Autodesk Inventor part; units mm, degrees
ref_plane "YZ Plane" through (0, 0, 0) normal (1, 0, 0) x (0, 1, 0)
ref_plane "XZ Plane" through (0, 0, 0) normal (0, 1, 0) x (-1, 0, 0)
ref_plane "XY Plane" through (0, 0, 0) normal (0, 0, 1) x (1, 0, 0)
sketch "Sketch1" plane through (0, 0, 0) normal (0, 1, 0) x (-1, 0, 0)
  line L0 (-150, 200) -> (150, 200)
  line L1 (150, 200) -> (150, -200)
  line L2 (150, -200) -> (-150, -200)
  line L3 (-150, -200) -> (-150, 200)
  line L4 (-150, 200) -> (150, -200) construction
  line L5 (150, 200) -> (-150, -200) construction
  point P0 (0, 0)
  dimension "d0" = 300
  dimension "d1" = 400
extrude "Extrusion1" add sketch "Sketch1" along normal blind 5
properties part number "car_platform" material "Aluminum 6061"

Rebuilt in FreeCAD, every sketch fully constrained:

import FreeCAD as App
import Part
import Sketcher
from FreeCAD import Vector


def add_polygon(sketch, points):
    """Adds a closed chain of lines whose ends are joined by coincident constraints."""
    first, n = sketch.GeometryCount, len(points)
    for a, b in zip(points, points[1:] + points[:1]):
        sketch.addGeometry(Part.LineSegment(App.Vector(*a, 0), App.Vector(*b, 0)), False)
    for i in range(n):
        sketch.addConstraint(Sketcher.Constraint("Coincident", first + i, 2, first + (i + 1) % n, 1))

doc = App.newDocument("Part")
body = doc.addObject("PartDesign::Body", "Body")

sketch1 = doc.addObject("Sketcher::SketchObject", "Sketch")
body.addObject(sketch1)
sketch1.AttachmentSupport = (doc.XZ_Plane, [""])
sketch1.MapMode = "FlatFace"
add_polygon(sketch1, [(-150, 200), (150, 200), (150, -200), (-150, -200)])
sketch1.addConstraint([
    Sketcher.Constraint("Horizontal", 0),
    Sketcher.Constraint("Vertical", 1),
    Sketcher.Constraint("Horizontal", 2),
    Sketcher.Constraint("Vertical", 3),
    Sketcher.Constraint("Symmetric", 0, 2, 2, 2, -1, 1),
    Sketcher.Constraint("DistanceX", 0, 1, 0, 2, 300.0),
    Sketcher.Constraint("DistanceY", 1, 2, 1, 1, 400.0),
])
pad1 = doc.addObject("PartDesign::Pad", "Pad")
body.addObject(pad1)
pad1.Profile = sketch1
pad1.Length = 5
pad1.Reversed = True

doc.recompute()
